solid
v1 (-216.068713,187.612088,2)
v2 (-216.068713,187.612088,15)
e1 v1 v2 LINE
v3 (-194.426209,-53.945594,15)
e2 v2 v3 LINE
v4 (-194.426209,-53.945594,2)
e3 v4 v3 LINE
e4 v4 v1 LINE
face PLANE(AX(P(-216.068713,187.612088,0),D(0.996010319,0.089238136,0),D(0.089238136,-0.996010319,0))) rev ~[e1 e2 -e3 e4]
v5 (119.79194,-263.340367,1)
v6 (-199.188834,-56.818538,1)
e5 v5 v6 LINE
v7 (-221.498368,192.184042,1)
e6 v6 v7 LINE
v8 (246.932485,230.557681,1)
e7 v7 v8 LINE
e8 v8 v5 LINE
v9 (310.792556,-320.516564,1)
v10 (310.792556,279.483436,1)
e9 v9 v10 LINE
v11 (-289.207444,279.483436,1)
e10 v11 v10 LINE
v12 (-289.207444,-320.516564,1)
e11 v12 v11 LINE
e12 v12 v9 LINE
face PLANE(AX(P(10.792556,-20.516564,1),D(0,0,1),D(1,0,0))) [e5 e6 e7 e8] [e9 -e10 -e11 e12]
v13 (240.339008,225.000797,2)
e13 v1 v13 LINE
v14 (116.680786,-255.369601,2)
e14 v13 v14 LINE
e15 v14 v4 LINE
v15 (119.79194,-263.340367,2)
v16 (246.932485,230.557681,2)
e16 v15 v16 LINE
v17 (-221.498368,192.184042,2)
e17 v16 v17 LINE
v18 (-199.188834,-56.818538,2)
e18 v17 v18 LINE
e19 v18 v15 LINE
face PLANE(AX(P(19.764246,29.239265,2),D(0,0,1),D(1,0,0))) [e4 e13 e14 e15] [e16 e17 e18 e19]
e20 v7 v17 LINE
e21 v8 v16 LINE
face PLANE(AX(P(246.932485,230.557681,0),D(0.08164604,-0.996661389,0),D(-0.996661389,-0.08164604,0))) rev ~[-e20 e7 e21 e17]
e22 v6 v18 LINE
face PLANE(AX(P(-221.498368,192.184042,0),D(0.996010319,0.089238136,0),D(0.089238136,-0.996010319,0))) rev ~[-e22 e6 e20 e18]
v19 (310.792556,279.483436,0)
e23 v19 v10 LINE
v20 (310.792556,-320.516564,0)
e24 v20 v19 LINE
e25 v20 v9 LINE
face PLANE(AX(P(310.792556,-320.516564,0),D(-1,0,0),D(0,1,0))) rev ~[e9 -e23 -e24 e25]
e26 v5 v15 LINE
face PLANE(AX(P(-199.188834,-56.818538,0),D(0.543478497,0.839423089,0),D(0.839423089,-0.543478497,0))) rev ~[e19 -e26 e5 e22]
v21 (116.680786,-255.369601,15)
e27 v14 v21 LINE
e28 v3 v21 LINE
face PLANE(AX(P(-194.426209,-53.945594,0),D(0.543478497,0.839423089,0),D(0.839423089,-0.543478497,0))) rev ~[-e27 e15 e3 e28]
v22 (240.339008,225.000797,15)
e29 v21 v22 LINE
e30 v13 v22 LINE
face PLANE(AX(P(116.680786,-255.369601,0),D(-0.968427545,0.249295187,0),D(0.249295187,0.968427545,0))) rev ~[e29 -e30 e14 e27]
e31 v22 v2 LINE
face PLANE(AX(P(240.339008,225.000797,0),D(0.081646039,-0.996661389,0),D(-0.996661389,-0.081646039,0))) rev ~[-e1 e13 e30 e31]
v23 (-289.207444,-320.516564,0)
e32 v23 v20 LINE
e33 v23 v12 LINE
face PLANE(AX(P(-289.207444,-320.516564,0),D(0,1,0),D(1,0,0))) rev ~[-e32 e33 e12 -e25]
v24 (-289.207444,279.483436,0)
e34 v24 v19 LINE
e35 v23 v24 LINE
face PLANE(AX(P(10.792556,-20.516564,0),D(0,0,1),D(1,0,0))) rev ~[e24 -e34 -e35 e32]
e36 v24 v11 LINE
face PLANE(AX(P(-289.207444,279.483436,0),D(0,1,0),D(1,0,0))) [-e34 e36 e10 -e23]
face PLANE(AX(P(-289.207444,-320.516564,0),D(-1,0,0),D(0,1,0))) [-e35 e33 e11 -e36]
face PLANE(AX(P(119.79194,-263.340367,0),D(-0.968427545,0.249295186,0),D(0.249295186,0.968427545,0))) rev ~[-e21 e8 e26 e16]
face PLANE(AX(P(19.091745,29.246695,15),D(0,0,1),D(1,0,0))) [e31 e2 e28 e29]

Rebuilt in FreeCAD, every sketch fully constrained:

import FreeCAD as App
import Part
import Sketcher
Q = App.Units.Quantity

doc = App.newDocument("Part")
body = doc.addObject("PartDesign::Body", "Body")

# Sketch on XY plane
sketch1 = body.newObject("Sketcher::SketchObject", "Sketch")
sketch1.AttachmentSupport = (doc.getObject("XY_Plane"), [""])
sketch1.MapMode = "FlatFace"
sketch1.addGeometry([
    Part.LineSegment(App.Vector(-289, 279, 0), App.Vector(-289, -321, 0)),  # 0
    Part.LineSegment(App.Vector(-289, -321, 0), App.Vector(311, -321, 0)),  # 1
    Part.LineSegment(App.Vector(311, -321, 0), App.Vector(311, 279, 0)),  # 2
    Part.LineSegment(App.Vector(311, 279, 0), App.Vector(-289, 279, 0)),  # 3
    Part.LineSegment(App.Vector(-199, -57, 0), App.Vector(-221, 192, 0)),  # 4
    Part.LineSegment(App.Vector(-221, 192, 0), App.Vector(247, 231, 0)),  # 5
    Part.LineSegment(App.Vector(247, 231, 0), App.Vector(120, -263, 0)),  # 6
    Part.LineSegment(App.Vector(120, -263, 0), App.Vector(-199, -57, 0)),  # 7
], False)
sketch1.addConstraint([
    Sketcher.Constraint("Coincident", 0, 2, 1, 1),
    Sketcher.Constraint("Coincident", 1, 2, 2, 1),
    Sketcher.Constraint("Coincident", 2, 2, 3, 1),
    Sketcher.Constraint("Coincident", 3, 2, 0, 1),
    Sketcher.Constraint("Coincident", 4, 2, 5, 1),
    Sketcher.Constraint("Coincident", 5, 2, 6, 1),
    Sketcher.Constraint("Coincident", 6, 2, 7, 1),
    Sketcher.Constraint("Coincident", 7, 2, 4, 1),
    Sketcher.Constraint("Vertical", 0),
    Sketcher.Constraint("Horizontal", 1),
    Sketcher.Constraint("Vertical", 2),
    Sketcher.Constraint("Horizontal", 3),
    Sketcher.Constraint("Equal", 3, 0),
    Sketcher.Constraint("DistanceX", 1, 1, 1, 2, Q("600 mm")),
    Sketcher.Constraint("Distance", 4, Q("250 mm")),
    Sketcher.Constraint("Distance", 5, Q("470 mm")),
    Sketcher.Constraint("Distance", 6, Q("510 mm")),
    Sketcher.Constraint("Distance", 7, Q("380 mm")),
    Sketcher.Constraint("DistanceX", 4, 2, -1, 1, Q("221.498368 mm")),
    Sketcher.Constraint("DistanceY", -1, 1, 4, 2, Q("192.184042 mm")),
    Sketcher.Constraint("DistanceY", -1, 1, 5, 2, Q("230.557681 mm")),
    Sketcher.Constraint("DistanceX", -1, 1, 6, 2, Q("119.79194 mm")),
    Sketcher.Constraint("DistanceX", 5, 2, 2, 2, Q("63.860071 mm")),
    Sketcher.Constraint("DistanceY", 0, 2, -1, 1, Q("320.516564 mm")),
])
pad1 = body.newObject("PartDesign::Pad", "Pad")
pad1.Profile = sketch1
pad1.Length = 1

# Sketch on XY plane
sketch2 = body.newObject("Sketcher::SketchObject", "Sketch001")
sketch2.AttachmentSupport = (doc.getObject("XY_Plane"), [""])
sketch2.MapMode = "FlatFace"
sketch2.addGeometry([
    Part.LineSegment(App.Vector(119.79194, -263.340367, 0), App.Vector(246.932485, 230.557681, 0)),  # 0
    Part.LineSegment(App.Vector(246.932485, 230.557681, 0), App.Vector(-221.498368, 192.184042, 0)),  # 1
    Part.LineSegment(App.Vector(-221.498368, 192.184042, 0), App.Vector(-199.188834, -56.818538, 0)),  # 2
    Part.LineSegment(App.Vector(-199.188834, -56.818538, 0), App.Vector(119.79194, -263.340367, 0)),  # 3
    Part.LineSegment(App.Vector(-216.068713, 187.612088, 0), App.Vector(240.339008, 225.000797, 0)),  # 4
    Part.LineSegment(App.Vector(240.339008, 225.000797, 0), App.Vector(116.680786, -255.369601, 0)),  # 5
    Part.LineSegment(App.Vector(116.680786, -255.369601, 0), App.Vector(-194.426209, -53.945594, 0)),  # 6
    Part.LineSegment(App.Vector(-194.426209, -53.945594, 0), App.Vector(-216.068713, 187.612088, 0)),  # 7
], False)
sketch2.addConstraint([
    Sketcher.Constraint("Coincident", 0, 2, 1, 1),
    Sketcher.Constraint("Coincident", 1, 2, 2, 1),
    Sketcher.Constraint("Coincident", 2, 2, 3, 1),
    Sketcher.Constraint("Coincident", 3, 2, 0, 1),
    Sketcher.Constraint("Coincident", 4, 2, 5, 1),
    Sketcher.Constraint("Coincident", 5, 2, 6, 1),
    Sketcher.Constraint("Coincident", 6, 2, 7, 1),
    Sketcher.Constraint("Coincident", 7, 2, 4, 1),
    Sketcher.Constraint("Distance", 0, Q("510 mm")),
    Sketcher.Constraint("Distance", 1, Q("470 mm")),
    Sketcher.Constraint("Distance", 2, Q("250 mm")),
    Sketcher.Constraint("Distance", 3, Q("380 mm")),
    Sketcher.Constraint("DistanceY", 5, 2, -1, 1, Q("255.369601 mm")),
    Sketcher.Constraint("DistanceY", 5, 2, 4, 2, Q("480.370398 mm")),
    Sketcher.Constraint("DistanceX", 5, 2, 0, 2, Q("130.251699 mm")),
    Sketcher.Constraint("DistanceX", 7, 2, 0, 2, Q("463.001198 mm")),
    Sketcher.Constraint("Distance", 6, Q("370.620012 mm")),
    Sketcher.Constraint("Distance", 7, Q("242.525281 mm")),
    Sketcher.Constraint("DistanceY", -1, 1, 0, 2, Q("230.557681 mm")),
    Sketcher.Constraint("DistanceX", 1, 2, -1, 1, Q("221.498368 mm")),
    Sketcher.Constraint("DistanceY", -1, 1, 1, 2, Q("192.184042 mm")),
    Sketcher.Constraint("DistanceX", -1, 1, 3, 2, Q("119.79194 mm")),
    Sketcher.Constraint("DistanceX", -1, 1, 4, 2, Q("240.339008 mm")),
    Sketcher.Constraint("DistanceX", 6, 2, -1, 1, Q("194.426209 mm")),
])
pad2 = body.newObject("PartDesign::Pad", "Pad001")
pad2.Profile = sketch2
pad2.Length = 2

# Sketch on XY plane
sketch3 = body.newObject("Sketcher::SketchObject", "Sketch002")
sketch3.AttachmentSupport = (doc.getObject("XY_Plane"), [""])
sketch3.MapMode = "FlatFace"
sketch3.addGeometry([
    Part.LineSegment(App.Vector(-194, -54, 0), App.Vector(117, -255, 0)),
    Part.LineSegment(App.Vector(117, -255, 0), App.Vector(240, 225, 0)),
    Part.LineSegment(App.Vector(240, 225, 0), App.Vector(-216, 188, 0)),
    Part.LineSegment(App.Vector(-216, 188, 0), App.Vector(-194, -54, 0)),
], False)
sketch3.addConstraint([
    Sketcher.Constraint("Coincident", 0, 2, 1, 1),
    Sketcher.Constraint("Coincident", 1, 2, 2, 1),
    Sketcher.Constraint("Coincident", 2, 2, 3, 1),
    Sketcher.Constraint("Coincident", 3, 2, 0, 1),
    Sketcher.Constraint("DistanceY", 0, 2, -1, 1, Q("255.369601 mm")),
    Sketcher.Constraint("DistanceY", 0, 2, 1, 2, Q("480.370398 mm")),
    Sketcher.Constraint("DistanceX", 2, 2, 0, 2, Q("332.749499 mm")),
    Sketcher.Constraint("Distance", 0, Q("370.620012 mm")),
    Sketcher.Constraint("Distance", 3, Q("242.525281 mm")),
    Sketcher.Constraint("DistanceX", -1, 1, 1, 2, Q("240.339008 mm")),
    Sketcher.Constraint("DistanceY", -1, 1, 2, 2, Q("187.612088 mm")),
    Sketcher.Constraint("DistanceX", 3, 2, -1, 1, Q("194.426209 mm")),
])
pad3 = body.newObject("PartDesign::Pad", "Pad002")
pad3.Profile = sketch3
pad3.Length = 15

doc.recompute()
